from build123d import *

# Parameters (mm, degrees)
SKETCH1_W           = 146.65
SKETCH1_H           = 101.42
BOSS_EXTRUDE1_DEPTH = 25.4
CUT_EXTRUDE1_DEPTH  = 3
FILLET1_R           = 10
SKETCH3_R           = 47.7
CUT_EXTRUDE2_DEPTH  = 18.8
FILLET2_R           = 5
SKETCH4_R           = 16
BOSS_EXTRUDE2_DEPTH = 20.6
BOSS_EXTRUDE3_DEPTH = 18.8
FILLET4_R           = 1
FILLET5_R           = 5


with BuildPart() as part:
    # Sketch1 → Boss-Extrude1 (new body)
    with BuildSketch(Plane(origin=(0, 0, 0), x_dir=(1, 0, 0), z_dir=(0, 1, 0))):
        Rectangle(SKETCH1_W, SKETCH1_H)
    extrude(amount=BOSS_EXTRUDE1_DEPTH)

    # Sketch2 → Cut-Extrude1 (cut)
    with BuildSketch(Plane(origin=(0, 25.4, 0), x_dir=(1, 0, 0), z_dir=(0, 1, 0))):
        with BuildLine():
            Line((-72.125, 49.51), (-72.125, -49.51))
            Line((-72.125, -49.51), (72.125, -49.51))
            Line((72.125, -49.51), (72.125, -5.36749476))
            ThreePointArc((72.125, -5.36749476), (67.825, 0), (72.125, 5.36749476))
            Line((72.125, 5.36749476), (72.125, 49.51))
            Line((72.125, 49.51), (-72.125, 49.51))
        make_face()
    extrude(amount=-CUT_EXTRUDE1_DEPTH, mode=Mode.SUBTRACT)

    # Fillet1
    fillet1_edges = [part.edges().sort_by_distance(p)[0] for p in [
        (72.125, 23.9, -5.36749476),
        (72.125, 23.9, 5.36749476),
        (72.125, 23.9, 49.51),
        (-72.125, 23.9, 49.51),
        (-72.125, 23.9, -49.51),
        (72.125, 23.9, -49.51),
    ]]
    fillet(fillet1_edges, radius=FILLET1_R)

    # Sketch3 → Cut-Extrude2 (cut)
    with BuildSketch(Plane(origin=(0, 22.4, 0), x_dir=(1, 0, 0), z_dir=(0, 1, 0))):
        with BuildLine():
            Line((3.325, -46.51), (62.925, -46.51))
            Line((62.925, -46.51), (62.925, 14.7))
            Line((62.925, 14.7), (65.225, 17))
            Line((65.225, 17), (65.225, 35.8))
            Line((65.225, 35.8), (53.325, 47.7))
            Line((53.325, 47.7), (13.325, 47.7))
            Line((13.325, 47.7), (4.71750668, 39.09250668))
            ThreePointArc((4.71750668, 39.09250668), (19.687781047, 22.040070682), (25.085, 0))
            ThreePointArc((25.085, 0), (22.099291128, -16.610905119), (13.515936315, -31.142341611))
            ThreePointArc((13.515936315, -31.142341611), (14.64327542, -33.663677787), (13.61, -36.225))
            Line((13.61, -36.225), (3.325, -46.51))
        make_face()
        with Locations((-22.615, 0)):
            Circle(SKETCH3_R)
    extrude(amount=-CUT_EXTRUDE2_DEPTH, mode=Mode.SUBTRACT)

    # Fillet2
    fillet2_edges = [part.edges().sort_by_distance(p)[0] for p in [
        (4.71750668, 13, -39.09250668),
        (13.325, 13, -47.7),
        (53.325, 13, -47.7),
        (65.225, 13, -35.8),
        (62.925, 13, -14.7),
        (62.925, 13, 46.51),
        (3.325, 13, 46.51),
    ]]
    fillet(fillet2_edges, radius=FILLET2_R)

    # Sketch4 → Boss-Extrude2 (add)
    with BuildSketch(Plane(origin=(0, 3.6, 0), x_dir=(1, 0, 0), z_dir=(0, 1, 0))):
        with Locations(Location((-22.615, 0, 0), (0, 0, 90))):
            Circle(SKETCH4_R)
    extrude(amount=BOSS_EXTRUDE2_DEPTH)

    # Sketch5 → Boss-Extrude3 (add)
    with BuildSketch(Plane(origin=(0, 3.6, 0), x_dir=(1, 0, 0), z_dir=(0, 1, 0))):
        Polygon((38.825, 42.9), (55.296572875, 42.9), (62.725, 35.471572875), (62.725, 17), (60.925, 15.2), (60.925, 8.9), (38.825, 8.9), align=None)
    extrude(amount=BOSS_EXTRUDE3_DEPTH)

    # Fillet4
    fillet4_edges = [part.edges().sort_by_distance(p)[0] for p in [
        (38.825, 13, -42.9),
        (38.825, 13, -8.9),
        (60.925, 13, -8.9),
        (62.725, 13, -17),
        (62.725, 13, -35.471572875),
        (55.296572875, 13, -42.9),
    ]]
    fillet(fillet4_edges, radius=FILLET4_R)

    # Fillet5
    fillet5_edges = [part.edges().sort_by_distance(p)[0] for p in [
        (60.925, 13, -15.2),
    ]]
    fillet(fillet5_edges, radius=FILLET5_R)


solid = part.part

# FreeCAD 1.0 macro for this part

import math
import FreeCAD as App
import Part
import Sketcher
Q = App.Units.Quantity


def edges_at(feature, points):
    """Names of the edges that pass closest to the given points."""
    edges = feature.Shape.Edges
    near = lambda p: min(range(len(edges)), key=lambda i: edges[i].distToShape(Part.Vertex(*p))[0])
    return sorted({f"Edge{near(p) + 1}" for p in points})


def add_polygon(sketch, points):
    """Adds a closed chain of lines whose ends are joined by coincident constraints."""
    first, n = sketch.GeometryCount, len(points)
    for a, b in zip(points, points[1:] + points[:1]):
        sketch.addGeometry(Part.LineSegment(App.Vector(*a, 0), App.Vector(*b, 0)), False)
    for i in range(n):
        sketch.addConstraint(Sketcher.Constraint("Coincident", first + i, 2, first + (i + 1) % n, 1))

doc = App.newDocument("Part")
body = doc.addObject("PartDesign::Body", "Body")

# Sketch on XZ plane
sketch1 = doc.addObject("Sketcher::SketchObject", "Sketch")
body.addObject(sketch1)
sketch1.AttachmentSupport = (doc.XZ_Plane, [""])
sketch1.MapMode = "FlatFace"
add_polygon(sketch1, [(-73, -51), (-73, 51), (73, 51), (73, -51)])  # lines 0-3
sketch1.addConstraint(Sketcher.Constraint("Vertical", 0))
sketch1.addConstraint(Sketcher.Constraint("Horizontal", 1))
sketch1.addConstraint(Sketcher.Constraint("Vertical", 2))
sketch1.addConstraint(Sketcher.Constraint("Horizontal", 3))
sketch1.addConstraint(Sketcher.Constraint("Symmetric", 0, 2, 2, 2, -1, 1))
sketch1.addConstraint(Sketcher.Constraint("DistanceX", 1, 1, 1, 2, 146.65))
sketch1.addConstraint(Sketcher.Constraint("DistanceY", 0, 1, 0, 2, 101.42))
pad1 = doc.addObject("PartDesign::Pad", "Pad")
body.addObject(pad1)
pad1.Profile = sketch1
pad1.Length = 25.4
pad1.Reversed = True

# Sketch on XZ plane
sketch2 = doc.addObject("Sketcher::SketchObject", "Sketch001")
body.addObject(sketch2)
sketch2.AttachmentSupport = (doc.XZ_Plane, [""])
sketch2.MapMode = "FlatFace"
sketch2.AttachmentOffset = App.Placement(App.Vector(0, 0, -25.4), App.Rotation())
sketch2.addGeometry(Part.LineSegment(App.Vector(-72, -50, 0), App.Vector(-72, 50, 0)), False)
sketch2.addGeometry(Part.LineSegment(App.Vector(-72, 50, 0), App.Vector(72, 50, 0)), False)
sketch2.addGeometry(Part.LineSegment(App.Vector(72, 50, 0), App.Vector(72, 5, 0)), False)
sketch2.addGeometry(Part.ArcOfCircle(Part.Circle(App.Vector(73, 0, 0), App.Vector(0, 0, 1), 6), math.radians(103), math.radians(257)), False)
sketch2.addGeometry(Part.LineSegment(App.Vector(72, -5, 0), App.Vector(72, -50, 0)), False)
sketch2.addGeometry(Part.LineSegment(App.Vector(72, -50, 0), App.Vector(-72, -50, 0)), False)
sketch2.addConstraint(Sketcher.Constraint("Coincident", 0, 2, 1, 1))
sketch2.addConstraint(Sketcher.Constraint("Coincident", 1, 2, 2, 1))
sketch2.addConstraint(Sketcher.Constraint("Coincident", 2, 2, 3, 1))
sketch2.addConstraint(Sketcher.Constraint("Coincident", 3, 2, 4, 1))
sketch2.addConstraint(Sketcher.Constraint("Coincident", 4, 2, 5, 1))
sketch2.addConstraint(Sketcher.Constraint("Coincident", 5, 2, 0, 1))
sketch2.addConstraint(Sketcher.Constraint("Vertical", 0))
sketch2.addConstraint(Sketcher.Constraint("Horizontal", 1))
sketch2.addConstraint(Sketcher.Constraint("Vertical", 2))
sketch2.addConstraint(Sketcher.Constraint("Vertical", 4))
sketch2.addConstraint(Sketcher.Constraint("Horizontal", 5))
sketch2.addConstraint(Sketcher.Constraint("Symmetric", 0, 2, 4, 2, -1, 1))
sketch2.addConstraint(Sketcher.Constraint("Symmetric", 2, 2, 3, 2, -1))
sketch2.addConstraint(Sketcher.Constraint("Radius", 3, 5.5))
sketch2.addConstraint(Sketcher.Constraint("DistanceX", 1, 1, 1, 2, 144.25))
sketch2.addConstraint(Sketcher.Constraint("DistanceY", 0, 1, 0, 2, 99.02))
sketch2.addConstraint(Sketcher.Constraint("DistanceX", 1, 2, 3, 3, 1.2))
pocket1 = doc.addObject("PartDesign::Pocket", "Pocket")
body.addObject(pocket1)
pocket1.Profile = sketch2
pocket1.Length = 3
pocket1.Reversed = True
doc.recompute()

fillet = doc.addObject("PartDesign::Fillet", "Fillet")
body.addObject(fillet)
fillet.Base = (pocket1, edges_at(pocket1, [
    (72.125, 23.9, -5.367),
    (72.125, 23.9, 5.367),
    (72.125, 23.9, 49.51),
    (-72.125, 23.9, 49.51),
    (-72.125, 23.9, -49.51),
    (72.125, 23.9, -49.51),
]))
fillet.Radius = 10

# Sketch on XZ plane
sketch3 = doc.addObject("Sketcher::SketchObject", "Sketch002")
body.addObject(sketch3)
sketch3.AttachmentSupport = (doc.XZ_Plane, [""])
sketch3.MapMode = "FlatFace"
sketch3.AttachmentOffset = App.Placement(App.Vector(0, 0, -22.4), App.Rotation())
sketch3.addGeometry(Part.LineSegment(App.Vector(3.3, 46.5, 0), App.Vector(62.9, 46.5, 0)), False)
sketch3.addGeometry(Part.LineSegment(App.Vector(62.9, 46.5, 0), App.Vector(62.9, -14.7, 0)), False)
sketch3.addGeometry(Part.LineSegment(App.Vector(62.9, -14.7, 0), App.Vector(65.2, -17, 0)), False)
sketch3.addGeometry(Part.LineSegment(App.Vector(65.2, -17, 0), App.Vector(65.2, -35.8, 0)), False)
sketch3.addGeometry(Part.LineSegment(App.Vector(65.2, -35.8, 0), App.Vector(53.3, -47.7, 0)), False)
sketch3.addGeometry(Part.LineSegment(App.Vector(53.3, -47.7, 0), App.Vector(13.3, -47.7, 0)), False)
sketch3.addGeometry(Part.LineSegment(App.Vector(13.3, -47.7, 0), App.Vector(4.7, -39.1, 0)), False)
sketch3.addGeometry(Part.ArcOfCircle(Part.Circle(App.Vector(-22.6, 0, 0), App.Vector(0, 0, 1), 47.7), math.radians(41), math.radians(305)), False)
sketch3.addGeometry(Part.ArcOfCircle(Part.Circle(App.Vector(11.1, 33.7, 0), App.Vector(0, 0, 1), 3.5), math.radians(-47), math.radians(45)), False)
sketch3.addGeometry(Part.LineSegment(App.Vector(13.6, 36.2, 0), App.Vector(3.3, 46.5, 0)), False)
sketch3.addConstraint(Sketcher.Constraint("Coincident", 0, 2, 1, 1))
sketch3.addConstraint(Sketcher.Constraint("Coincident", 1, 2, 2, 1))
sketch3.addConstraint(Sketcher.Constraint("Coincident", 2, 2, 3, 1))
sketch3.addConstraint(Sketcher.Constraint("Coincident", 3, 2, 4, 1))
sketch3.addConstraint(Sketcher.Constraint("Coincident", 4, 2, 5, 1))
sketch3.addConstraint(Sketcher.Constraint("Coincident", 5, 2, 6, 1))
sketch3.addConstraint(Sketcher.Constraint("Coincident", 6, 2, 7, 2))
sketch3.addConstraint(Sketcher.Constraint("Coincident", 7, 1, 8, 1))
sketch3.addConstraint(Sketcher.Constraint("Tangent", 8, 2, 9, 1))
sketch3.addConstraint(Sketcher.Constraint("Coincident", 9, 2, 0, 1))
sketch3.addConstraint(Sketcher.Constraint("Horizontal", 0))
sketch3.addConstraint(Sketcher.Constraint("Vertical", 1))
sketch3.addConstraint(Sketcher.Constraint("Vertical", 3))
sketch3.addConstraint(Sketcher.Constraint("Horizontal", 5))
sketch3.addConstraint(Sketcher.Constraint("PointOnObject", 7, 3, -1))
sketch3.addConstraint(Sketcher.Constraint("Perpendicular", 2, 4))
sketch3.addConstraint(Sketcher.Constraint("Perpendicular", 4, 6))
sketch3.addConstraint(Sketcher.Constraint("Parallel", 6, 9))
sketch3.addConstraint(Sketcher.Constraint("Radius", 7, 47.7))
sketch3.addConstraint(Sketcher.Constraint("DistanceX", 5, 2, 5, 1, 40.0))
sketch3.addConstraint(Sketcher.Constraint("Angle", 2, Q("-45 deg")))
sketch3.addConstraint(Sketcher.Constraint("DistanceX", 0, 1, 0, 2, 59.6))
sketch3.addConstraint(Sketcher.Constraint("DistanceY", 3, 2, 3, 1, 18.8))
sketch3.addConstraint(Sketcher.Constraint("DistanceY", 2, 2, -1, 1, 17.0))
sketch3.addConstraint(Sketcher.Constraint("DistanceY", 4, 2, 1, 2, 33.0))
sketch3.addConstraint(Sketcher.Constraint("DistanceY", 1, 2, 1, 1, 61.21))
sketch3.addConstraint(Sketcher.Constraint("DistanceY", 1, 2, -1, 1, 14.7))
sketch3.addConstraint(Sketcher.Constraint("DistanceX", -1, 1, 8, 2, 13.61))
sketch3.addConstraint(Sketcher.Constraint("DistanceX", 7, 3, 0, 2, 85.54))
sketch3.addConstraint(Sketcher.Constraint("DistanceX", 7, 3, -1, 1, 22.615))
sketch3.addConstraint(Sketcher.Constraint("Radius", 8, 3.529886))
pocket2 = doc.addObject("PartDesign::Pocket", "Pocket001")
body.addObject(pocket2)
pocket2.Profile = sketch3
pocket2.Length = 18.8
pocket2.Reversed = True
doc.recompute()

fillet2 = doc.addObject("PartDesign::Fillet", "Fillet001")
body.addObject(fillet2)
fillet2.Base = (pocket2, edges_at(pocket2, [
    (4.718, 13, -39.093),
    (13.325, 13, -47.7),
    (53.325, 13, -47.7),
    (65.225, 13, -35.8),
    (62.925, 13, -14.7),
    (62.925, 13, 46.51),
    (3.325, 13, 46.51),
]))
fillet2.Radius = 5

# Sketch on XZ plane
sketch4 = doc.addObject("Sketcher::SketchObject", "Sketch003")
body.addObject(sketch4)
sketch4.AttachmentSupport = (doc.XZ_Plane, [""])
sketch4.MapMode = "FlatFace"
sketch4.AttachmentOffset = App.Placement(App.Vector(0, 0, -3.6), App.Rotation())
sketch4.addGeometry(Part.Circle(App.Vector(-23, 0, 0), App.Vector(0, 0, 1), 16), False)
sketch4.addConstraint(Sketcher.Constraint("PointOnObject", 0, 3, -1))
sketch4.addConstraint(Sketcher.Constraint("Diameter", 0, 32.0))
sketch4.addConstraint(Sketcher.Constraint("DistanceX", 0, 3, -1, 1, 22.615))
pad2 = doc.addObject("PartDesign::Pad", "Pad001")
body.addObject(pad2)
pad2.Profile = sketch4
pad2.Length = 20.6
pad2.Reversed = True

# Sketch on XZ plane
sketch5 = doc.addObject("Sketcher::SketchObject", "Sketch004")
body.addObject(sketch5)
sketch5.AttachmentSupport = (doc.XZ_Plane, [""])
sketch5.MapMode = "FlatFace"
sketch5.AttachmentOffset = App.Placement(App.Vector(0, 0, -3.6), App.Rotation())
add_polygon(sketch5, [(55.3, -42.9), (38.8, -42.9), (38.8, -8.9), (60.9, -8.9), (60.9, -15.2), (62.7, -17), (62.7, -35.5)])  # lines 0-6
sketch5.addConstraint(Sketcher.Constraint("Horizontal", 0))
sketch5.addConstraint(Sketcher.Constraint("Vertical", 1))
sketch5.addConstraint(Sketcher.Constraint("Horizontal", 2))
sketch5.addConstraint(Sketcher.Constraint("Vertical", 3))
sketch5.addConstraint(Sketcher.Constraint("Vertical", 5))
sketch5.addConstraint(Sketcher.Constraint("Perpendicular", 4, 6))
sketch5.addConstraint(Sketcher.Constraint("DistanceY", 1, 1, 1, 2, 34.0))
sketch5.addConstraint(Sketcher.Constraint("Angle", 4, Q("-45 deg")))
sketch5.addConstraint(Sketcher.Constraint("DistanceX", 2, 1, 2, 2, 22.1))
sketch5.addConstraint(Sketcher.Constraint("DistanceY", 3, 2, 3, 1, 6.3))
sketch5.addConstraint(Sketcher.Constraint("DistanceY", 4, 2, -1, 1, 17.0))
sketch5.addConstraint(Sketcher.Constraint("DistanceY", 0, 2, -1, 1, 42.9))
sketch5.addConstraint(Sketcher.Constraint("DistanceX", -1, 1, 0, 2, 38.825))
sketch5.addConstraint(Sketcher.Constraint("DistanceX", 0, 2, 0, 1, 16.471573))
pad3 = doc.addObject("PartDesign::Pad", "Pad002")
body.addObject(pad3)
pad3.Profile = sketch5
pad3.Length = 18.8
pad3.Reversed = True
doc.recompute()

fillet3 = doc.addObject("PartDesign::Fillet", "Fillet002")
body.addObject(fillet3)
fillet3.Base = (pad3, edges_at(pad3, [
    (38.825, 13, -42.9),
    (38.825, 13, -8.9),
    (60.925, 13, -8.9),
    (62.725, 13, -17),
    (62.725, 13, -35.472),
    (55.297, 13, -42.9),
]))
fillet3.Radius = 1
doc.recompute()

fillet4 = doc.addObject("PartDesign::Fillet", "Fillet003")
body.addObject(fillet4)
fillet4.Base = (fillet3, edges_at(fillet3, [(60.925, 13, -15.2)]))
fillet4.Radius = 5

doc.recompute()
